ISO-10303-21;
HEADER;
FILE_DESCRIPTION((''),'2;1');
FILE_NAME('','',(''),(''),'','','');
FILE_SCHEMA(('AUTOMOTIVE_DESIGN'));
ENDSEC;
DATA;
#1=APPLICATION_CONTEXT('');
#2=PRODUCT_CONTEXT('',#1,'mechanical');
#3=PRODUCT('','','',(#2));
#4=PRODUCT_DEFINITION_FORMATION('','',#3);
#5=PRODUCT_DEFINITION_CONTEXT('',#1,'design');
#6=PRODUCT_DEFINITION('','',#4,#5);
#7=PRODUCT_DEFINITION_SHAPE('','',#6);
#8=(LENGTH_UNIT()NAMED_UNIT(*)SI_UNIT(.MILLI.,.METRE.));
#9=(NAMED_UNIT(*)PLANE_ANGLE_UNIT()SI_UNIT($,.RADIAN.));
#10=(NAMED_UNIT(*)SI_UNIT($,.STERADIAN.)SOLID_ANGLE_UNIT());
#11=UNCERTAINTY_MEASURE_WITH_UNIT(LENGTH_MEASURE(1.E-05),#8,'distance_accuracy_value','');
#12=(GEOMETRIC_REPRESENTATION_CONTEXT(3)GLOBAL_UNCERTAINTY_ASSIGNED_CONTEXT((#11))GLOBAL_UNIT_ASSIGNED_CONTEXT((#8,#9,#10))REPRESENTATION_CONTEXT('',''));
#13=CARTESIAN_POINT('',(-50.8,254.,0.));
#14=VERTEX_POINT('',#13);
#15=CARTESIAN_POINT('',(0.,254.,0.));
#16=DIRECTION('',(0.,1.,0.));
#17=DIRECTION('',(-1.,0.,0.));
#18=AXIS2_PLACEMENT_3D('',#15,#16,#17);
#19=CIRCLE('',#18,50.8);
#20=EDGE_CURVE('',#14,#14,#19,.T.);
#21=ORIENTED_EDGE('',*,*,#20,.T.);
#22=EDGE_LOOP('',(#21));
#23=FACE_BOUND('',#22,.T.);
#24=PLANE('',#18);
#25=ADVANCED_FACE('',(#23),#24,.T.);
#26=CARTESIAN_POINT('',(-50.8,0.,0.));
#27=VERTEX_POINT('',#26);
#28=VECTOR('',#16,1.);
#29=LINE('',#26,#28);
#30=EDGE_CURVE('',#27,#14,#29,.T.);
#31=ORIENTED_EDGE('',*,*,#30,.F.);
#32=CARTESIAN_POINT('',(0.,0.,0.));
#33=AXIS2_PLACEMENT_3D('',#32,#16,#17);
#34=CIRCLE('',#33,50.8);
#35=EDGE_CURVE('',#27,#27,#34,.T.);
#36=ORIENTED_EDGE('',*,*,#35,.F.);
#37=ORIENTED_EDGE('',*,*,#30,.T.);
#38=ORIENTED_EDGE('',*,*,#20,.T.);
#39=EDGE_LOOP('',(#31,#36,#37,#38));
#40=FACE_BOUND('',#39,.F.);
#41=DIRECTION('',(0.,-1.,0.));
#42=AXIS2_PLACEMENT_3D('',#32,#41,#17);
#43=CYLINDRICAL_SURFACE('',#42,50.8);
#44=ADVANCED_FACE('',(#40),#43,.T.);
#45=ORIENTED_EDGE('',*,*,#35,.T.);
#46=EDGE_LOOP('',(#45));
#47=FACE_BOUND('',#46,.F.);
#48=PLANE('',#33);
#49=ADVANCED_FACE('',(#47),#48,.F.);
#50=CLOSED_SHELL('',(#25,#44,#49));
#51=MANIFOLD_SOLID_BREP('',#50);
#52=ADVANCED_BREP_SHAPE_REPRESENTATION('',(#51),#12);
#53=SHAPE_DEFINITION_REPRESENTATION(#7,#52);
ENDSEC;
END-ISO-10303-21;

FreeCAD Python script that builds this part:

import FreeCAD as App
import Part
import Sketcher
from FreeCAD import Vector
Q = App.Units.Quantity

doc = App.newDocument("Part")
params = doc.addObject("Spreadsheet::Sheet", "Params")
for row, (alias, value) in enumerate([
    ("sketch1_diameter", "4 in"),
    ("pad1_length", "10 in"),
], start=1):
    params.set(f"A{row}", alias)
    params.set(f"B{row}", "=" + value)
    params.setAlias(f"B{row}", alias)

body = doc.addObject("PartDesign::Body", "Body")

# Sketch on XZ plane
sketch1 = body.newObject("Sketcher::SketchObject", "Sketch")
sketch1.AttachmentSupport = (doc.getObject("XZ_Plane"), [""])
sketch1.MapMode = "FlatFace"
sketch1.addGeometry(Part.Circle(Vector(0, 0, 0), Vector(0, 0, 1), 51), False)
sketch1.addConstraint([
    Sketcher.Constraint("Coincident", 0, 3, -1, 1),
    Sketcher.Constraint("Diameter", 0, Q("4 in")),
])
sketch1.setExpression("Constraints[1]", "Params.sketch1_diameter")
pad1 = body.newObject("PartDesign::Pad", "Pad")
pad1.Profile = sketch1
pad1.setExpression("Length", "Params.pad1_length")
pad1.Reversed = True

doc.recompute()
